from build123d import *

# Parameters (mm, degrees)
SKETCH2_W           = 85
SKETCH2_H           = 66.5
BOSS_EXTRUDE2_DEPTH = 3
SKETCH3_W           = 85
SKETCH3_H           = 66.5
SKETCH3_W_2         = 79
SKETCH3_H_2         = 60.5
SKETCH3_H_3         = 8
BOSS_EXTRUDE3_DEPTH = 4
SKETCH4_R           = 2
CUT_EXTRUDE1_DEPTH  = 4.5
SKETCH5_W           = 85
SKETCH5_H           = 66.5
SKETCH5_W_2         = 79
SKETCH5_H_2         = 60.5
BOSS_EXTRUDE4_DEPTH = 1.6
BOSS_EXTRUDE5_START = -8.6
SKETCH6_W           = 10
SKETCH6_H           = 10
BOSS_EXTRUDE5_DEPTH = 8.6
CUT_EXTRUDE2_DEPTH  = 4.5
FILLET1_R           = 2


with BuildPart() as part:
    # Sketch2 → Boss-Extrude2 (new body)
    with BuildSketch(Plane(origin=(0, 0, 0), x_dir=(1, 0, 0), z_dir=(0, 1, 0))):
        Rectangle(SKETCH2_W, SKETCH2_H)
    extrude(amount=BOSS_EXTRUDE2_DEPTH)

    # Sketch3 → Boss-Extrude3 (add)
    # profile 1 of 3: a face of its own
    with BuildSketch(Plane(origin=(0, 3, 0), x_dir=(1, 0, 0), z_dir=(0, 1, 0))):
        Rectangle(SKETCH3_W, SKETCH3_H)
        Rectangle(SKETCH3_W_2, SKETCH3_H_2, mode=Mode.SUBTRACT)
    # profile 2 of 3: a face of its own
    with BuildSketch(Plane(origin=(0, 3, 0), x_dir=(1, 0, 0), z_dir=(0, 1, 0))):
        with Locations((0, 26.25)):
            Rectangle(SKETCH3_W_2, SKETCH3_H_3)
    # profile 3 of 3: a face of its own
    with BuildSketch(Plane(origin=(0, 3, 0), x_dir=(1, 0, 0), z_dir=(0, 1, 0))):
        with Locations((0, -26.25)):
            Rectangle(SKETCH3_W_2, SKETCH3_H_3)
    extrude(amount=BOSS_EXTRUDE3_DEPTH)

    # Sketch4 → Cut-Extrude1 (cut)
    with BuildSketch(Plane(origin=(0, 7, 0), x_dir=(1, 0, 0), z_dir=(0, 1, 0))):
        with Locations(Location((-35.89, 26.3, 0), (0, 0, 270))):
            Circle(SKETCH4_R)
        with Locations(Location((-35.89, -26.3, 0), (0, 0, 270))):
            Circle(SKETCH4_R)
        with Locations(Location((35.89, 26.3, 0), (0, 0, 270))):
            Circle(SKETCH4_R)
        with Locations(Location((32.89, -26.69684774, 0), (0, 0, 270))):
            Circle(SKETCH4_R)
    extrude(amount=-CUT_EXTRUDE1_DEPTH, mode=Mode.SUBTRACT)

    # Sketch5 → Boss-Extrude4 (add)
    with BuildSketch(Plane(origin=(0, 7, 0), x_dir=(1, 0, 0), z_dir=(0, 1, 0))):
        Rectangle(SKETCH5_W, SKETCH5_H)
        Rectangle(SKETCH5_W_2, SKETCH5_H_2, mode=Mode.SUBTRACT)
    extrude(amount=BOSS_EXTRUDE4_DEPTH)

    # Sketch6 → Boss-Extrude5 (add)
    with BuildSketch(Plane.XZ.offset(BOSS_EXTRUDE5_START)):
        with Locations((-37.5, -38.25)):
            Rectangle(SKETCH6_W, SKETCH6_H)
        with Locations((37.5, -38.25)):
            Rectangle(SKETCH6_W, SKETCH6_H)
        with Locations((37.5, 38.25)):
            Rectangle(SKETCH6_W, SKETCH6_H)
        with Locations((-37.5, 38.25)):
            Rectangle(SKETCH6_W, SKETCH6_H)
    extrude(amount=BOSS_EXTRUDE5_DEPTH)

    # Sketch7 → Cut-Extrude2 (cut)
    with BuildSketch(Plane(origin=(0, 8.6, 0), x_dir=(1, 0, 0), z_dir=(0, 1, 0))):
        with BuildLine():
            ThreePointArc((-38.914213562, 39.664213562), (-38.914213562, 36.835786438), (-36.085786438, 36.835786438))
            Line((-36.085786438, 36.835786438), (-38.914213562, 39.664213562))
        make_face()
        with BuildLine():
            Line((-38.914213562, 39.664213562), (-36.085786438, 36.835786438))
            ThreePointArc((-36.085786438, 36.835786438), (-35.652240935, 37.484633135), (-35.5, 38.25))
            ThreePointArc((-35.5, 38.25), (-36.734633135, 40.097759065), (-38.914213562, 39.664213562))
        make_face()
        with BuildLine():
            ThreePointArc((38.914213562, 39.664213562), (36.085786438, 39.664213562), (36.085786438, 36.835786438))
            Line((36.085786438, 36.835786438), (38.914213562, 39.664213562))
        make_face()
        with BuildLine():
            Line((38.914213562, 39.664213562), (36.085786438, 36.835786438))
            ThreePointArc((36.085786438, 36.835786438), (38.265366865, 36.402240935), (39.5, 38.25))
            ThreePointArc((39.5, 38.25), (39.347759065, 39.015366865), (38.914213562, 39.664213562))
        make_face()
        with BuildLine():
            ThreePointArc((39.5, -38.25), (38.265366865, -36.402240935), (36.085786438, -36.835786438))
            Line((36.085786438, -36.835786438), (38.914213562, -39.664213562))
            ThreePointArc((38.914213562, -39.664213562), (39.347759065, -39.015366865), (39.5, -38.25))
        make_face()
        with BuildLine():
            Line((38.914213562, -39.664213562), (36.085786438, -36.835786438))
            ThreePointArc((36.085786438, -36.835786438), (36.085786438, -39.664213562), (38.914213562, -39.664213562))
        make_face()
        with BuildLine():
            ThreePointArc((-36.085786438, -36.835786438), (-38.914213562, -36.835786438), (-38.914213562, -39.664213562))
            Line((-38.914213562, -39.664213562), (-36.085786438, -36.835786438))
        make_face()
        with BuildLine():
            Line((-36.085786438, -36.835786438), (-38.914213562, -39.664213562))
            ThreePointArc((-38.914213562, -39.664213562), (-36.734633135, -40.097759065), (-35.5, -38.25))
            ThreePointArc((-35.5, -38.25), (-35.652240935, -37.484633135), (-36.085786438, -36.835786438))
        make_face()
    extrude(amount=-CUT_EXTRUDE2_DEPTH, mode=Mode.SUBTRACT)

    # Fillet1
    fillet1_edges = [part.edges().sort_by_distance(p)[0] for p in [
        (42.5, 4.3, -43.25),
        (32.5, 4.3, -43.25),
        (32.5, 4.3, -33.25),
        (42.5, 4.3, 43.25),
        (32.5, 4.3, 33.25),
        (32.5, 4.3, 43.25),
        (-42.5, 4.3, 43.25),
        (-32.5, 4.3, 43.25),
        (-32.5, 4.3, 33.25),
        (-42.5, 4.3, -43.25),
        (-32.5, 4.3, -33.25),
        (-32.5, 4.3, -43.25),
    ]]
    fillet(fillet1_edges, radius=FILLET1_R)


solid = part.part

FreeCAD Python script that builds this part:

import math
import FreeCAD as App
import Part
import Sketcher

V = App.Vector
Q = App.Units.Quantity


def edges_at(feature, points):
    """Names of the edges that pass closest to the given points."""
    edges = feature.Shape.Edges
    near = lambda p: min(range(len(edges)), key=lambda i: edges[i].distToShape(Part.Vertex(*p))[0])
    return sorted({f"Edge{near(p) + 1}" for p in points})

doc = App.newDocument("Part")
body = doc.addObject("PartDesign::Body", "Body")

sketch1 = doc.addObject("Sketcher::SketchObject", "Sketch")
body.addObject(sketch1)
sketch1.AttachmentSupport = (doc.XZ_Plane, [""])
sketch1.MapMode = "FlatFace"
sketch1.addGeometry([
    Part.LineSegment(V(-42, -33, 0), V(-42, 33, 0)),
    Part.LineSegment(V(-42, 33, 0), V(42, 33, 0)),
    Part.LineSegment(V(42, 33, 0), V(42, -33, 0)),
    Part.LineSegment(V(42, -33, 0), V(-42, -33, 0)),
], False)
sketch1.addConstraint([
    Sketcher.Constraint("Coincident", 0, 2, 1, 1),
    Sketcher.Constraint("Coincident", 1, 2, 2, 1),
    Sketcher.Constraint("Coincident", 2, 2, 3, 1),
    Sketcher.Constraint("Coincident", 3, 2, 0, 1),
    Sketcher.Constraint("Vertical", 0),
    Sketcher.Constraint("Horizontal", 1),
    Sketcher.Constraint("Vertical", 2),
    Sketcher.Constraint("Horizontal", 3),
    Sketcher.Constraint("Symmetric", 0, 2, 2, 2, -1, 1),
    Sketcher.Constraint("DistanceX", 1, 1, 1, 2, Q("85 mm")),
    Sketcher.Constraint("DistanceY", 0, 1, 0, 2, Q("66.5 mm")),
])
pad1 = doc.addObject("PartDesign::Pad", "Pad")
body.addObject(pad1)
pad1.Profile = sketch1
pad1.Length = 3
pad1.Reversed = True

sketch2 = doc.addObject("Sketcher::SketchObject", "Sketch001")
body.addObject(sketch2)
sketch2.AttachmentSupport = (doc.XZ_Plane, [""])
sketch2.MapMode = "FlatFace"
sketch2.AttachmentOffset = App.Placement(V(0, 0, -3), App.Rotation())
sketch2.addGeometry([
    Part.LineSegment(V(-42, -33, 0), V(-42, 33, 0)),
    Part.LineSegment(V(-42, 33, 0), V(42, 33, 0)),
    Part.LineSegment(V(42, 33, 0), V(42, -33, 0)),
    Part.LineSegment(V(42, -33, 0), V(-42, -33, 0)),
    Part.LineSegment(V(40, -22, 0), V(40, 22, 0)),
    Part.LineSegment(V(40, 22, 0), V(-40, 22, 0)),
    Part.LineSegment(V(-40, 22, 0), V(-40, -22, 0)),
    Part.LineSegment(V(-40, -22, 0), V(40, -22, 0)),
], False)
sketch2.addConstraint([
    Sketcher.Constraint("Coincident", 0, 2, 1, 1),
    Sketcher.Constraint("Coincident", 1, 2, 2, 1),
    Sketcher.Constraint("Coincident", 2, 2, 3, 1),
    Sketcher.Constraint("Coincident", 3, 2, 0, 1),
    Sketcher.Constraint("Coincident", 4, 2, 5, 1),
    Sketcher.Constraint("Coincident", 5, 2, 6, 1),
    Sketcher.Constraint("Coincident", 6, 2, 7, 1),
    Sketcher.Constraint("Coincident", 7, 2, 4, 1),
    Sketcher.Constraint("Vertical", 0),
    Sketcher.Constraint("Horizontal", 1),
    Sketcher.Constraint("Vertical", 2),
    Sketcher.Constraint("Horizontal", 3),
    Sketcher.Constraint("Vertical", 4),
    Sketcher.Constraint("Horizontal", 5),
    Sketcher.Constraint("Vertical", 6),
    Sketcher.Constraint("Horizontal", 7),
    Sketcher.Constraint("Symmetric", 0, 2, 2, 2, -1, 1),
    Sketcher.Constraint("Symmetric", 4, 2, 6, 2, -1, 1),
    Sketcher.Constraint("DistanceX", 1, 1, 1, 2, Q("85 mm")),
    Sketcher.Constraint("DistanceX", 5, 2, 5, 1, Q("79 mm")),
    Sketcher.Constraint("DistanceY", 0, 1, 0, 2, Q("66.5 mm")),
    Sketcher.Constraint("DistanceY", 4, 1, 4, 2, Q("44.5 mm")),
])
pad2 = doc.addObject("PartDesign::Pad", "Pad001")
body.addObject(pad2)
pad2.Profile = sketch2
pad2.Length = 4
pad2.Reversed = True

sketch3 = doc.addObject("Sketcher::SketchObject", "Sketch002")
body.addObject(sketch3)
sketch3.AttachmentSupport = (doc.XZ_Plane, [""])
sketch3.MapMode = "FlatFace"
sketch3.AttachmentOffset = App.Placement(V(0, 0, -7), App.Rotation())
sketch3.addGeometry([
    Part.Circle(V(-35.9, -26.3, 0), V(0, 0, 1), 2),
    Part.Circle(V(-35.9, 26.3, 0), V(0, 0, 1), 2),
    Part.Circle(V(35.9, -26.3, 0), V(0, 0, 1), 2),
    Part.Circle(V(32.9, 26.7, 0), V(0, 0, 1), 2),
], False)
sketch3.addConstraint([
    Sketcher.Constraint("Equal", 0, 1),
    Sketcher.Constraint("Equal", 1, 2),
    Sketcher.Constraint("Equal", 2, 3),
    Sketcher.Constraint("Symmetric", 1, 3, 2, 3, -1, 1),
    Sketcher.Constraint("Symmetric", 0, 3, 2, 3, -2),
    Sketcher.Constraint("Diameter", 0, Q("4 mm")),
    Sketcher.Constraint("DistanceX", 3, 3, 2, 3, Q("3 mm")),
    Sketcher.Constraint("DistanceY", 0, 3, -1, 1, Q("26.3 mm")),
    Sketcher.Constraint("DistanceX", 0, 3, -1, 1, Q("35.89 mm")),
    Sketcher.Constraint("DistanceY", -1, 1, 3, 3, Q("26.696848 mm")),
])
pocket1 = doc.addObject("PartDesign::Pocket", "Pocket")
body.addObject(pocket1)
pocket1.Profile = sketch3
pocket1.Length = 4.5
pocket1.Reversed = True

sketch4 = doc.addObject("Sketcher::SketchObject", "Sketch003")
body.addObject(sketch4)
sketch4.AttachmentSupport = (doc.XZ_Plane, [""])
sketch4.MapMode = "FlatFace"
sketch4.AttachmentOffset = App.Placement(V(0, 0, -7), App.Rotation())
sketch4.addGeometry([
    Part.LineSegment(V(-42, -33, 0), V(-42, 33, 0)),
    Part.LineSegment(V(-42, 33, 0), V(42, 33, 0)),
    Part.LineSegment(V(42, 33, 0), V(42, -33, 0)),
    Part.LineSegment(V(42, -33, 0), V(-42, -33, 0)),
    Part.LineSegment(V(40, 30, 0), V(-40, 30, 0)),
    Part.LineSegment(V(-40, 30, 0), V(-40, -30, 0)),
    Part.LineSegment(V(-40, -30, 0), V(40, -30, 0)),
    Part.LineSegment(V(40, -30, 0), V(40, 30, 0)),
], False)
sketch4.addConstraint([
    Sketcher.Constraint("Coincident", 0, 2, 1, 1),
    Sketcher.Constraint("Coincident", 1, 2, 2, 1),
    Sketcher.Constraint("Coincident", 2, 2, 3, 1),
    Sketcher.Constraint("Coincident", 3, 2, 0, 1),
    Sketcher.Constraint("Coincident", 4, 2, 5, 1),
    Sketcher.Constraint("Coincident", 5, 2, 6, 1),
    Sketcher.Constraint("Coincident", 6, 2, 7, 1),
    Sketcher.Constraint("Coincident", 7, 2, 4, 1),
    Sketcher.Constraint("Vertical", 0),
    Sketcher.Constraint("Horizontal", 1),
    Sketcher.Constraint("Vertical", 2),
    Sketcher.Constraint("Horizontal", 3),
    Sketcher.Constraint("Horizontal", 4),
    Sketcher.Constraint("Vertical", 5),
    Sketcher.Constraint("Horizontal", 6),
    Sketcher.Constraint("Vertical", 7),
    Sketcher.Constraint("Symmetric", 0, 2, 2, 2, -1, 1),
    Sketcher.Constraint("Symmetric", 4, 2, 6, 2, -1, 1),
    Sketcher.Constraint("DistanceX", 1, 1, 1, 2, Q("85 mm")),
    Sketcher.Constraint("DistanceX", 4, 2, 4, 1, Q("79 mm")),
    Sketcher.Constraint("DistanceY", 0, 1, 0, 2, Q("66.5 mm")),
    Sketcher.Constraint("DistanceY", 5, 2, 5, 1, Q("60.5 mm")),
])
pad3 = doc.addObject("PartDesign::Pad", "Pad002")
body.addObject(pad3)
pad3.Profile = sketch4
pad3.Length = 1.6
pad3.Reversed = True

sketch5 = doc.addObject("Sketcher::SketchObject", "Sketch004")
body.addObject(sketch5)
sketch5.AttachmentSupport = (doc.XZ_Plane, [""])
sketch5.MapMode = "FlatFace"
sketch5.AttachmentOffset = App.Placement(V(0, 0, -8.6), App.Rotation())
sketch5.addGeometry([
    Part.LineSegment(V(-42, -33, 0), V(-42, -43, 0)),
    Part.LineSegment(V(-42, -43, 0), V(-32, -43, 0)),
    Part.LineSegment(V(-32, -43, 0), V(-32, -33, 0)),
    Part.LineSegment(V(-32, -33, 0), V(-42, -33, 0)),
    Part.LineSegment(V(32, -33, 0), V(32, -43, 0)),
    Part.LineSegment(V(32, -43, 0), V(42, -43, 0)),
    Part.LineSegment(V(42, -43, 0), V(42, -33, 0)),
    Part.LineSegment(V(42, -33, 0), V(32, -33, 0)),
    Part.LineSegment(V(32, 43, 0), V(32, 33, 0)),
    Part.LineSegment(V(32, 33, 0), V(42, 33, 0)),
    Part.LineSegment(V(42, 33, 0), V(42, 43, 0)),
    Part.LineSegment(V(42, 43, 0), V(32, 43, 0)),
    Part.LineSegment(V(-42, 43, 0), V(-42, 33, 0)),
    Part.LineSegment(V(-42, 33, 0), V(-32, 33, 0)),
    Part.LineSegment(V(-32, 33, 0), V(-32, 43, 0)),
    Part.LineSegment(V(-32, 43, 0), V(-42, 43, 0)),
], False)
sketch5.addConstraint([
    Sketcher.Constraint("Coincident", 0, 2, 1, 1),
    Sketcher.Constraint("Coincident", 1, 2, 2, 1),
    Sketcher.Constraint("Coincident", 2, 2, 3, 1),
    Sketcher.Constraint("Coincident", 3, 2, 0, 1),
    Sketcher.Constraint("Coincident", 4, 2, 5, 1),
    Sketcher.Constraint("Coincident", 5, 2, 6, 1),
    Sketcher.Constraint("Coincident", 6, 2, 7, 1),
    Sketcher.Constraint("Coincident", 7, 2, 4, 1),
    Sketcher.Constraint("Coincident", 8, 2, 9, 1),
    Sketcher.Constraint("Coincident", 9, 2, 10, 1),
    Sketcher.Constraint("Coincident", 10, 2, 11, 1),
    Sketcher.Constraint("Coincident", 11, 2, 8, 1),
    Sketcher.Constraint("Coincident", 12, 2, 13, 1),
    Sketcher.Constraint("Coincident", 13, 2, 14, 1),
    Sketcher.Constraint("Coincident", 14, 2, 15, 1),
    Sketcher.Constraint("Coincident", 15, 2, 12, 1),
    Sketcher.Constraint("Vertical", 0),
    Sketcher.Constraint("Horizontal", 1),
    Sketcher.Constraint("Vertical", 2),
    Sketcher.Constraint("Horizontal", 3),
    Sketcher.Constraint("Vertical", 4),
    Sketcher.Constraint("Horizontal", 5),
    Sketcher.Constraint("Vertical", 6),
    Sketcher.Constraint("Horizontal", 7),
    Sketcher.Constraint("Vertical", 8),
    Sketcher.Constraint("Horizontal", 9),
    Sketcher.Constraint("Vertical", 10),
    Sketcher.Constraint("Horizontal", 11),
    Sketcher.Constraint("Vertical", 12),
    Sketcher.Constraint("Horizontal", 13),
    Sketcher.Constraint("Vertical", 14),
    Sketcher.Constraint("Horizontal", 15),
    Sketcher.Constraint("Symmetric", 2, 2, 8, 2, -1, 1),
    Sketcher.Constraint("Symmetric", 0, 2, 10, 2, -1, 1),
    Sketcher.Constraint("Symmetric", 6, 2, 12, 2, -1, 1),
    Sketcher.Constraint("Symmetric", 4, 2, 14, 2, -1, 1),
    Sketcher.Constraint("Symmetric", 1, 2, 4, 2, -2),
    Sketcher.Constraint("Symmetric", 3, 2, 6, 2, -2),
    Sketcher.Constraint("Equal", 15, 0),
    Sketcher.Constraint("DistanceX", 1, 1, 1, 2, Q("10 mm")),
    Sketcher.Constraint("DistanceX", 1, 2, 4, 2, Q("65 mm")),
    Sketcher.Constraint("DistanceY", 7, 2, 8, 2, Q("66.5 mm")),
])
pad4 = doc.addObject("PartDesign::Pad", "Pad003")
body.addObject(pad4)
pad4.Profile = sketch5
pad4.Length = 8.6

sketch6 = doc.addObject("Sketcher::SketchObject", "Sketch005")
body.addObject(sketch6)
sketch6.AttachmentSupport = (doc.XZ_Plane, [""])
sketch6.MapMode = "FlatFace"
sketch6.AttachmentOffset = App.Placement(V(0, 0, -8.6), App.Rotation())
sketch6.addGeometry([
    Part.ArcOfCircle(Part.Circle(V(-37.5, -38.2, 0), V(0, 0, 1), 2), math.radians(45), math.radians(225)),
    Part.ArcOfCircle(Part.Circle(V(-37.5, -38.2, 0), V(0, 0, 1), 2), math.radians(0), math.radians(45)),
    Part.ArcOfCircle(Part.Circle(V(-37.5, -38.2, 0), V(0, 0, 1), 2), math.radians(-135), math.radians(0)),
    Part.ArcOfCircle(Part.Circle(V(37.5, -38.2, 0), V(0, 0, 1), 2), math.radians(135), math.radians(315)),
    Part.ArcOfCircle(Part.Circle(V(37.5, -38.2, 0), V(0, 0, 1), 2), math.radians(0), math.radians(135)),
    Part.ArcOfCircle(Part.Circle(V(37.5, -38.3, 0), V(0, 0, 1), 2), math.radians(-45), math.radians(0)),
    Part.ArcOfCircle(Part.Circle(V(37.5, 38.2, 0), V(0, 0, 1), 2), math.radians(-135), math.radians(0)),
    Part.ArcOfCircle(Part.Circle(V(37.5, 38.2, 0), V(0, 0, 1), 2), math.radians(45), math.radians(225)),
    Part.ArcOfCircle(Part.Circle(V(37.5, 38.3, 0), V(0, 0, 1), 2), math.radians(0), math.radians(45)),
    Part.ArcOfCircle(Part.Circle(V(-37.5, 38.2, 0), V(0, 0, 1), 2), math.radians(135), math.radians(315)),
    Part.ArcOfCircle(Part.Circle(V(-37.5, 38.2, 0), V(0, 0, 1), 2), math.radians(0), math.radians(135)),
    Part.ArcOfCircle(Part.Circle(V(-37.5, 38.2, 0), V(0, 0, 1), 2), math.radians(-45), math.radians(0)),
], False)
sketch6.addConstraint([
    Sketcher.Constraint("Tangent", 0, 1, 1, 2),
    Sketcher.Constraint("Tangent", 1, 1, 2, 2),
    Sketcher.Constraint("Tangent", 2, 1, 0, 2),
    Sketcher.Constraint("Tangent", 3, 1, 4, 2),
    Sketcher.Constraint("Tangent", 4, 1, 5, 2),
    Sketcher.Constraint("Tangent", 5, 1, 3, 2),
    Sketcher.Constraint("Tangent", 6, 1, 7, 2),
    Sketcher.Constraint("Tangent", 7, 1, 8, 2),
    Sketcher.Constraint("Tangent", 8, 1, 6, 2),
    Sketcher.Constraint("Tangent", 9, 1, 10, 2),
    Sketcher.Constraint("Tangent", 10, 1, 11, 2),
    Sketcher.Constraint("Tangent", 11, 1, 9, 2),
    Sketcher.Constraint("Equal", 2, 3),
    Sketcher.Constraint("Equal", 5, 6),
    Sketcher.Constraint("Equal", 8, 9),
    Sketcher.Constraint("Symmetric", 0, 3, 6, 3, -1, 1),
    Sketcher.Constraint("Symmetric", 3, 3, 9, 3, -1, 1),
    Sketcher.Constraint("Symmetric", 0, 3, 3, 3, -2),
    Sketcher.Constraint("Horizontal", 5, 3, 1, 1),
    Sketcher.Constraint("Horizontal", 0, 1, 3, 1),
    Sketcher.Constraint("Horizontal", 1, 1, 4, 1),
    Sketcher.Constraint("Horizontal", 2, 1, 5, 1),
    Sketcher.Constraint("Horizontal", 11, 3, 8, 1),
    Sketcher.Constraint("Horizontal", 7, 1, 9, 1),
    Sketcher.Constraint("Horizontal", 8, 1, 10, 1),
    Sketcher.Constraint("Horizontal", 6, 1, 11, 1),
    Sketcher.Constraint("Vertical", 3, 1, 6, 1),
    Sketcher.Constraint("Vertical", 5, 1, 7, 1),
    Sketcher.Constraint("Radius", 0, Q("2 mm")),
    Sketcher.Constraint("DistanceX", 1, 3, 3, 3, Q("75 mm")),
    Sketcher.Constraint("DistanceX", 9, 1, 6, 1, Q("75 mm")),
    Sketcher.Constraint("DistanceY", 3, 3, 6, 3, Q("76.5 mm")),
    Sketcher.Constraint("DistanceX", 0, 1, -1, 1, Q("36.085786 mm")),
])
pocket2 = doc.addObject("PartDesign::Pocket", "Pocket001")
body.addObject(pocket2)
pocket2.Profile = sketch6
pocket2.Length = 4.5
pocket2.Reversed = True
doc.recompute()

fillet = doc.addObject("PartDesign::Fillet", "Fillet")
body.addObject(fillet)
fillet.Base = (pocket2, edges_at(pocket2, [
    (42.5, 4.3, -43.25),
    (32.5, 4.3, -43.25),
    (32.5, 4.3, -33.25),
    (42.5, 4.3, 43.25),
    (32.5, 4.3, 33.25),
    (32.5, 4.3, 43.25),
    (-42.5, 4.3, 43.25),
    (-32.5, 4.3, 43.25),
    (-32.5, 4.3, 33.25),
    (-42.5, 4.3, -43.25),
    (-32.5, 4.3, -33.25),
    (-32.5, 4.3, -43.25),
]))
fillet.Radius = 2

doc.recompute()
